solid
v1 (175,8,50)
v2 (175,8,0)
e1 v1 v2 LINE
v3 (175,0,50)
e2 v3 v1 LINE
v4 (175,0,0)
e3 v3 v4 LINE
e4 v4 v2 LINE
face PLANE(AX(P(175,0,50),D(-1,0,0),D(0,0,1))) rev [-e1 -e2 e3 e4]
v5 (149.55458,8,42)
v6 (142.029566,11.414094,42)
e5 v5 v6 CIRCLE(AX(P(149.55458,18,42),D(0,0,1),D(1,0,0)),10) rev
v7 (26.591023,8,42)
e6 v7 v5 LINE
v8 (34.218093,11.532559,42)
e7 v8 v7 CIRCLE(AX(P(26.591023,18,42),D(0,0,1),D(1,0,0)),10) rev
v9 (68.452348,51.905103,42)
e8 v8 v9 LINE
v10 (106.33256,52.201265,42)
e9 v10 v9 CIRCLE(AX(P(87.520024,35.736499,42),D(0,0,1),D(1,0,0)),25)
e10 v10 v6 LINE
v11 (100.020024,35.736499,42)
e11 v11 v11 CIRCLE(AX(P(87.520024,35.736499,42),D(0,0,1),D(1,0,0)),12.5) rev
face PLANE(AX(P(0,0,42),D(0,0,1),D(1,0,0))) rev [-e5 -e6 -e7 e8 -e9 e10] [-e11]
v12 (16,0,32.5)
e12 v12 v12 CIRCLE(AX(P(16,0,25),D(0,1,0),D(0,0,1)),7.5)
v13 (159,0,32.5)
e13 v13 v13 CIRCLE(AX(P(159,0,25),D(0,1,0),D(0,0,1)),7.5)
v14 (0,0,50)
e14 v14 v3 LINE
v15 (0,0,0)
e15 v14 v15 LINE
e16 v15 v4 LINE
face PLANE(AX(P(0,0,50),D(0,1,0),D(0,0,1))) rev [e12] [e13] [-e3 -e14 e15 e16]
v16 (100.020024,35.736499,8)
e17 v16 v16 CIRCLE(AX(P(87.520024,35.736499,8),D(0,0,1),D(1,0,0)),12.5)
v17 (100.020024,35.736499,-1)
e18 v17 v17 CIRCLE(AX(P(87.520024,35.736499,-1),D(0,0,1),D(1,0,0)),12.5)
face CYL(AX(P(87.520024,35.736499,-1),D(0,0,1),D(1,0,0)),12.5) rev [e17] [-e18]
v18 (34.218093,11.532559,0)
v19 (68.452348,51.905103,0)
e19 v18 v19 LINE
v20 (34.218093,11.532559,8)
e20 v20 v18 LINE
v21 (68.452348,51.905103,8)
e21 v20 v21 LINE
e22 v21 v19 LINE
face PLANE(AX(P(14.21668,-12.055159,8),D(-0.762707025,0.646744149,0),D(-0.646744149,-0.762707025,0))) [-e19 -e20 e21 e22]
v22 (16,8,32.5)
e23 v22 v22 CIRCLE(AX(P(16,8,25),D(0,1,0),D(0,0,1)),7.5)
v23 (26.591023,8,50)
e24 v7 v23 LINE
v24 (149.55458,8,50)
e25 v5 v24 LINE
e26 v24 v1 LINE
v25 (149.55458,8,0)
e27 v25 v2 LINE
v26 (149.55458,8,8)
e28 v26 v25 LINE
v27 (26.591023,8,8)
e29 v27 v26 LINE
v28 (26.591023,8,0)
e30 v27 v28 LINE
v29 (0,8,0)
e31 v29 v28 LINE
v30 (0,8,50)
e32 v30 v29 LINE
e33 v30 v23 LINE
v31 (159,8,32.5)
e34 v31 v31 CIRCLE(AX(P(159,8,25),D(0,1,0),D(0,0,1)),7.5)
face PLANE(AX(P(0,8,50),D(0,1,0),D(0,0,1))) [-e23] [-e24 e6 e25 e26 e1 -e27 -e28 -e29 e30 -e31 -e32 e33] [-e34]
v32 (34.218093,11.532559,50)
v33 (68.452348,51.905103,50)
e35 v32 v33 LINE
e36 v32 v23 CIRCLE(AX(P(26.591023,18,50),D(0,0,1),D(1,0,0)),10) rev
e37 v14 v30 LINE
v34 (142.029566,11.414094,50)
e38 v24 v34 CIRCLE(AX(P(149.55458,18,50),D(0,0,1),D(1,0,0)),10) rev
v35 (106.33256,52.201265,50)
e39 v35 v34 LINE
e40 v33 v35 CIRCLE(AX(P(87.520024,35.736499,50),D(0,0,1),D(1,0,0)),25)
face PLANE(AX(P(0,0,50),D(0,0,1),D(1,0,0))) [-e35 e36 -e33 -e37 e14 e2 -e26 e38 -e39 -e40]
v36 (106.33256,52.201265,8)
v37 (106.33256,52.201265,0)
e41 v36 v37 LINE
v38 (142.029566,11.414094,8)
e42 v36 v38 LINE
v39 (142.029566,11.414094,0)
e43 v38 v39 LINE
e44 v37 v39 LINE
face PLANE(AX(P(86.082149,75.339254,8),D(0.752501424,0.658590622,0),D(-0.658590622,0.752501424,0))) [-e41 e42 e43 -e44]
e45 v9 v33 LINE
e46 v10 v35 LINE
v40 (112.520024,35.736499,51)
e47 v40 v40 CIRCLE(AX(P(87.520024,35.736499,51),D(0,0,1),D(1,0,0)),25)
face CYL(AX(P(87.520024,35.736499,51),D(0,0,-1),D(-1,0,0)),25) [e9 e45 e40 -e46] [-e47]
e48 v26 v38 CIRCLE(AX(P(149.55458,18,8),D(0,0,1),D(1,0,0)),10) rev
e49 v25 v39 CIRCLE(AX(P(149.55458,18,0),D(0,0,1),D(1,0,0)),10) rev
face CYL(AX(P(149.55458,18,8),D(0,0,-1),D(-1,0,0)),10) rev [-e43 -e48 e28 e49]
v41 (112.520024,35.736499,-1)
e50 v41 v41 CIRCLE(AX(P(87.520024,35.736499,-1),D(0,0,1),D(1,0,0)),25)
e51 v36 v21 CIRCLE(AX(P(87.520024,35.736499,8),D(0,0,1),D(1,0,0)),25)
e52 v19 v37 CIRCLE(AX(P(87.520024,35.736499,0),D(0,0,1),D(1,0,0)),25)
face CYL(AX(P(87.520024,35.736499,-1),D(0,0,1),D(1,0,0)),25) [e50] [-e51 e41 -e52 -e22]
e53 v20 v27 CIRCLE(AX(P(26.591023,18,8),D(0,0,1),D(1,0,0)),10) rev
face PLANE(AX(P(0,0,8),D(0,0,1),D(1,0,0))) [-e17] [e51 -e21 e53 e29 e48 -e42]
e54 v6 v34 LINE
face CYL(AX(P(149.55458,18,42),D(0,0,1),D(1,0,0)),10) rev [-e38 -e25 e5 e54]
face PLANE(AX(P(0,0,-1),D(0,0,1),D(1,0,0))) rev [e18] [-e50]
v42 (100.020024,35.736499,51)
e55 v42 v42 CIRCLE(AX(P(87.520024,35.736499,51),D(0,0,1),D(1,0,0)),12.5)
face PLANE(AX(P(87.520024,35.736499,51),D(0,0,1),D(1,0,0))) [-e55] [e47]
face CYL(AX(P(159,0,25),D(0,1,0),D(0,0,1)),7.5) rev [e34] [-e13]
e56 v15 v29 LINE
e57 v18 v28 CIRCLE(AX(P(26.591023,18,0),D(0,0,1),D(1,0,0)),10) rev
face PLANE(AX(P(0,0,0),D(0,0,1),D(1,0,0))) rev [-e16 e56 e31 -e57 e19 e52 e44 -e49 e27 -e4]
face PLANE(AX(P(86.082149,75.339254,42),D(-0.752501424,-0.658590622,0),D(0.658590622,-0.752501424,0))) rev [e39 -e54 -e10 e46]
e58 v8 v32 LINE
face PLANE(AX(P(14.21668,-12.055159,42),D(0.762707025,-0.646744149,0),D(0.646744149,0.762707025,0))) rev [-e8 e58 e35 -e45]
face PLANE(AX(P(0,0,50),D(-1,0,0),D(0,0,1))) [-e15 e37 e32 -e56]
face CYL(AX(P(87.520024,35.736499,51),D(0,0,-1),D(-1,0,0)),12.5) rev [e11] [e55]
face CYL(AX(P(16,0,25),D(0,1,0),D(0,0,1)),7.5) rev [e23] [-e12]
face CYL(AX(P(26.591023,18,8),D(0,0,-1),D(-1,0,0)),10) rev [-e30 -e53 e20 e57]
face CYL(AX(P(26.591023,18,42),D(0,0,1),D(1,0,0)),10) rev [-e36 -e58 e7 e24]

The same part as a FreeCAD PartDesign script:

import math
import FreeCAD as App
import Part
import Sketcher

V = App.Vector

doc = App.newDocument("Part")
body = doc.addObject("PartDesign::Body", "Body")

sketch1 = doc.addObject("Sketcher::SketchObject", "Sketch")
body.addObject(sketch1)
sketch1.AttachmentSupport = (doc.XY_Plane, [""])
sketch1.MapMode = "FlatFace"
sketch1.addGeometry([
    Part.LineSegment(V(175, 8, 0), V(0, 8, 0)),
    Part.LineSegment(V(0, 8, 0), V(0, 0, 0)),
    Part.LineSegment(V(0, 0, 0), V(175, 0, 0)),
    Part.LineSegment(V(175, 0, 0), V(175, 8, 0)),
], False)
sketch1.addConstraint([
    Sketcher.Constraint("Coincident", 0, 2, 1, 1),
    Sketcher.Constraint("Coincident", 1, 2, 2, 1),
    Sketcher.Constraint("Coincident", 2, 2, 3, 1),
    Sketcher.Constraint("Coincident", 3, 2, 0, 1),
    Sketcher.Constraint("Horizontal", 0),
    Sketcher.Constraint("Vertical", 1),
    Sketcher.Constraint("Horizontal", 2),
    Sketcher.Constraint("Vertical", 3),
    Sketcher.Constraint("Coincident", 1, 2, -1, 1),
    Sketcher.Constraint("DistanceX", 0, 2, 0, 1, 175.0),
    Sketcher.Constraint("DistanceY", 1, 2, 1, 1, 8.0),
])
pad1 = doc.addObject("PartDesign::Pad", "Pad")
body.addObject(pad1)
pad1.Profile = sketch1
pad1.Length = 50

sketch2 = doc.addObject("Sketcher::SketchObject", "Sketch001")
body.addObject(sketch2)
sketch2.AttachmentSupport = (doc.XY_Plane, [""])
sketch2.MapMode = "FlatFace"
sketch2.addGeometry([
    Part.ArcOfCircle(Part.Circle(V(27, 18, 0), V(0, 0, 1), 10), math.radians(-90), math.radians(-40)),
    Part.LineSegment(V(27, 8, 0), V(150, 8, 0)),
    Part.ArcOfCircle(Part.Circle(V(150, 18, 0), V(0, 0, 1), 10), math.radians(-139), math.radians(-90)),
    Part.LineSegment(V(142, 11, 0), V(106, 52, 0)),
    Part.ArcOfCircle(Part.Circle(V(88, 36, 0), V(0, 0, 1), 25), math.radians(0), math.radians(41)),
    Part.ArcOfCircle(Part.Circle(V(88, 36, 0), V(0, 0, 1), 25), math.radians(140), math.radians(360)),
    Part.LineSegment(V(68, 52, 0), V(34, 12, 0)),
], False)
sketch2.addConstraint([
    Sketcher.Constraint("Tangent", 0, 1, 1, 1),
    Sketcher.Constraint("Tangent", 1, 2, 2, 2),
    Sketcher.Constraint("Tangent", 2, 1, 3, 1),
    Sketcher.Constraint("Tangent", 3, 2, 4, 2),
    Sketcher.Constraint("Tangent", 4, 1, 5, 2),
    Sketcher.Constraint("Tangent", 5, 1, 6, 1),
    Sketcher.Constraint("Tangent", 6, 2, 0, 2),
    Sketcher.Constraint("Horizontal", 1),
    Sketcher.Constraint("Equal", 0, 2),
    Sketcher.Constraint("Equal", 4, 5),
    Sketcher.Constraint("Horizontal", 5, 3, 4, 1),
    Sketcher.Constraint("Radius", 0, 10.0),
    Sketcher.Constraint("Radius", 4, 25.0),
    Sketcher.Constraint("DistanceY", -1, 1, 0, 3, 18.0),
    Sketcher.Constraint("DistanceX", 0, 3, 4, 3, 60.929001),
    Sketcher.Constraint("DistanceY", -1, 1, 4, 3, 35.736499),
    Sketcher.Constraint("DistanceX", 1, 1, 1, 2, 122.963557),
    Sketcher.Constraint("DistanceX", -1, 1, 2, 3, 149.55458),
])
pad2 = doc.addObject("PartDesign::Pad", "Pad001")
body.addObject(pad2)
pad2.Profile = sketch2
pad2.Length = 8

sketch3 = doc.addObject("Sketcher::SketchObject", "Sketch002")
body.addObject(sketch3)
sketch3.AttachmentSupport = (doc.XY_Plane, [""])
sketch3.MapMode = "FlatFace"
sketch3.AttachmentOffset = App.Placement(V(0, 0, 42), App.Rotation())
sketch3.addGeometry([
    Part.ArcOfCircle(Part.Circle(V(27, 18, 0), V(0, 0, 1), 10), math.radians(-90), math.radians(-40)),
    Part.LineSegment(V(27, 8, 0), V(150, 8, 0)),
    Part.ArcOfCircle(Part.Circle(V(150, 18, 0), V(0, 0, 1), 10), math.radians(-139), math.radians(-90)),
    Part.LineSegment(V(142, 11, 0), V(106, 52, 0)),
    Part.ArcOfCircle(Part.Circle(V(88, 36, 0), V(0, 0, 1), 25), math.radians(0), math.radians(41)),
    Part.ArcOfCircle(Part.Circle(V(88, 36, 0), V(0, 0, 1), 25), math.radians(140), math.radians(360)),
    Part.LineSegment(V(68, 52, 0), V(34, 12, 0)),
], False)
sketch3.addConstraint([
    Sketcher.Constraint("Tangent", 0, 1, 1, 1),
    Sketcher.Constraint("Tangent", 1, 2, 2, 2),
    Sketcher.Constraint("Tangent", 2, 1, 3, 1),
    Sketcher.Constraint("Tangent", 3, 2, 4, 2),
    Sketcher.Constraint("Tangent", 4, 1, 5, 2),
    Sketcher.Constraint("Tangent", 5, 1, 6, 1),
    Sketcher.Constraint("Tangent", 6, 2, 0, 2),
    Sketcher.Constraint("Horizontal", 1),
    Sketcher.Constraint("Equal", 0, 2),
    Sketcher.Constraint("Equal", 4, 5),
    Sketcher.Constraint("Horizontal", 5, 3, 4, 1),
    Sketcher.Constraint("Radius", 0, 10.0),
    Sketcher.Constraint("Radius", 4, 25.0),
    Sketcher.Constraint("DistanceY", -1, 1, 0, 3, 18.0),
    Sketcher.Constraint("DistanceX", 0, 3, 4, 3, 60.929001),
    Sketcher.Constraint("DistanceY", -1, 1, 4, 3, 35.736499),
    Sketcher.Constraint("DistanceX", 1, 1, 1, 2, 122.963557),
    Sketcher.Constraint("DistanceX", -1, 1, 2, 3, 149.55458),
])
pad3 = doc.addObject("PartDesign::Pad", "Pad002")
body.addObject(pad3)
pad3.Profile = sketch3
pad3.Length = 8

sketch4 = doc.addObject("Sketcher::SketchObject", "Sketch003")
body.addObject(sketch4)
sketch4.AttachmentSupport = (doc.XY_Plane, [""])
sketch4.MapMode = "FlatFace"
sketch4.AttachmentOffset = App.Placement(V(0, 0, -1), App.Rotation())
sketch4.addGeometry([
    Part.Circle(V(88, 36, 0), V(0, 0, 1), 25),
    Part.Circle(V(88, 36, 0), V(0, 0, 1), 12),
], False)
sketch4.addConstraint([
    Sketcher.Constraint("Coincident", 1, 3, 0, 3),
    Sketcher.Constraint("Diameter", 0, 50.0),
    Sketcher.Constraint("Diameter", 1, 25.0),
    Sketcher.Constraint("DistanceY", -1, 1, 0, 3, 35.736499),
    Sketcher.Constraint("DistanceX", -1, 1, 0, 3, 87.520024),
])
pad4 = doc.addObject("PartDesign::Pad", "Pad003")
body.addObject(pad4)
pad4.Profile = sketch4
pad4.Length = 9

sketch5 = doc.addObject("Sketcher::SketchObject", "Sketch004")
body.addObject(sketch5)
sketch5.AttachmentSupport = (doc.XY_Plane, [""])
sketch5.MapMode = "FlatFace"
sketch5.AttachmentOffset = App.Placement(V(0, 0, 42), App.Rotation())
sketch5.addGeometry(Part.Circle(V(88, 36, 0), V(0, 0, 1), 25), False)
sketch5.addConstraint([
    Sketcher.Constraint("Diameter", 0, 50.0),
    Sketcher.Constraint("DistanceY", -1, 1, 0, 3, 35.736499),
    Sketcher.Constraint("DistanceX", -1, 1, 0, 3, 87.520024),
])
pad5 = doc.addObject("PartDesign::Pad", "Pad004")
body.addObject(pad5)
pad5.Profile = sketch5
pad5.Length = 9

sketch6 = doc.addObject("Sketcher::SketchObject", "Sketch005")
body.addObject(sketch6)
sketch6.AttachmentSupport = (doc.XY_Plane, [""])
sketch6.MapMode = "FlatFace"
sketch6.addGeometry(Part.Circle(V(88, 36, 0), V(0, 0, 1), 12), False)
sketch6.addConstraint([
    Sketcher.Constraint("Diameter", 0, 25.0),
    Sketcher.Constraint("DistanceY", -1, 1, 0, 3, 35.736499),
    Sketcher.Constraint("DistanceX", -1, 1, 0, 3, 87.520024),
])
pocket1 = doc.addObject("PartDesign::Pocket", "Pocket")
body.addObject(pocket1)
pocket1.Profile = sketch6
pocket1.Type = "ThroughAll"
pocket1.Midplane = True

sketch7 = doc.addObject("Sketcher::SketchObject", "Sketch006")
body.addObject(sketch7)
sketch7.AttachmentSupport = (doc.XZ_Plane, [""])
sketch7.MapMode = "FlatFace"
sketch7.AttachmentOffset = App.Placement(V(0, 0, -8), App.Rotation())
sketch7.addGeometry([
    Part.Circle(V(16, 25, 0), V(0, 0, 1), 8),
    Part.Circle(V(159, 25, 0), V(0, 0, 1), 8),
], False)
sketch7.addConstraint([
    Sketcher.Constraint("Equal", 0, 1),
    Sketcher.Constraint("Horizontal", 0, 3, 1, 3),
    Sketcher.Constraint("Diameter", 0, 15.0),
    Sketcher.Constraint("DistanceX", -1, 1, 0, 3, 16.0),
    Sketcher.Constraint("DistanceY", -1, 1, 0, 3, 25.0),
    Sketcher.Constraint("DistanceX", -1, 1, 1, 3, 159.0),
])
pocket2 = doc.addObject("PartDesign::Pocket", "Pocket001")
body.addObject(pocket2)
pocket2.Profile = sketch7
pocket2.Type = "ThroughAll"
pocket2.Midplane = True

doc.recompute()
